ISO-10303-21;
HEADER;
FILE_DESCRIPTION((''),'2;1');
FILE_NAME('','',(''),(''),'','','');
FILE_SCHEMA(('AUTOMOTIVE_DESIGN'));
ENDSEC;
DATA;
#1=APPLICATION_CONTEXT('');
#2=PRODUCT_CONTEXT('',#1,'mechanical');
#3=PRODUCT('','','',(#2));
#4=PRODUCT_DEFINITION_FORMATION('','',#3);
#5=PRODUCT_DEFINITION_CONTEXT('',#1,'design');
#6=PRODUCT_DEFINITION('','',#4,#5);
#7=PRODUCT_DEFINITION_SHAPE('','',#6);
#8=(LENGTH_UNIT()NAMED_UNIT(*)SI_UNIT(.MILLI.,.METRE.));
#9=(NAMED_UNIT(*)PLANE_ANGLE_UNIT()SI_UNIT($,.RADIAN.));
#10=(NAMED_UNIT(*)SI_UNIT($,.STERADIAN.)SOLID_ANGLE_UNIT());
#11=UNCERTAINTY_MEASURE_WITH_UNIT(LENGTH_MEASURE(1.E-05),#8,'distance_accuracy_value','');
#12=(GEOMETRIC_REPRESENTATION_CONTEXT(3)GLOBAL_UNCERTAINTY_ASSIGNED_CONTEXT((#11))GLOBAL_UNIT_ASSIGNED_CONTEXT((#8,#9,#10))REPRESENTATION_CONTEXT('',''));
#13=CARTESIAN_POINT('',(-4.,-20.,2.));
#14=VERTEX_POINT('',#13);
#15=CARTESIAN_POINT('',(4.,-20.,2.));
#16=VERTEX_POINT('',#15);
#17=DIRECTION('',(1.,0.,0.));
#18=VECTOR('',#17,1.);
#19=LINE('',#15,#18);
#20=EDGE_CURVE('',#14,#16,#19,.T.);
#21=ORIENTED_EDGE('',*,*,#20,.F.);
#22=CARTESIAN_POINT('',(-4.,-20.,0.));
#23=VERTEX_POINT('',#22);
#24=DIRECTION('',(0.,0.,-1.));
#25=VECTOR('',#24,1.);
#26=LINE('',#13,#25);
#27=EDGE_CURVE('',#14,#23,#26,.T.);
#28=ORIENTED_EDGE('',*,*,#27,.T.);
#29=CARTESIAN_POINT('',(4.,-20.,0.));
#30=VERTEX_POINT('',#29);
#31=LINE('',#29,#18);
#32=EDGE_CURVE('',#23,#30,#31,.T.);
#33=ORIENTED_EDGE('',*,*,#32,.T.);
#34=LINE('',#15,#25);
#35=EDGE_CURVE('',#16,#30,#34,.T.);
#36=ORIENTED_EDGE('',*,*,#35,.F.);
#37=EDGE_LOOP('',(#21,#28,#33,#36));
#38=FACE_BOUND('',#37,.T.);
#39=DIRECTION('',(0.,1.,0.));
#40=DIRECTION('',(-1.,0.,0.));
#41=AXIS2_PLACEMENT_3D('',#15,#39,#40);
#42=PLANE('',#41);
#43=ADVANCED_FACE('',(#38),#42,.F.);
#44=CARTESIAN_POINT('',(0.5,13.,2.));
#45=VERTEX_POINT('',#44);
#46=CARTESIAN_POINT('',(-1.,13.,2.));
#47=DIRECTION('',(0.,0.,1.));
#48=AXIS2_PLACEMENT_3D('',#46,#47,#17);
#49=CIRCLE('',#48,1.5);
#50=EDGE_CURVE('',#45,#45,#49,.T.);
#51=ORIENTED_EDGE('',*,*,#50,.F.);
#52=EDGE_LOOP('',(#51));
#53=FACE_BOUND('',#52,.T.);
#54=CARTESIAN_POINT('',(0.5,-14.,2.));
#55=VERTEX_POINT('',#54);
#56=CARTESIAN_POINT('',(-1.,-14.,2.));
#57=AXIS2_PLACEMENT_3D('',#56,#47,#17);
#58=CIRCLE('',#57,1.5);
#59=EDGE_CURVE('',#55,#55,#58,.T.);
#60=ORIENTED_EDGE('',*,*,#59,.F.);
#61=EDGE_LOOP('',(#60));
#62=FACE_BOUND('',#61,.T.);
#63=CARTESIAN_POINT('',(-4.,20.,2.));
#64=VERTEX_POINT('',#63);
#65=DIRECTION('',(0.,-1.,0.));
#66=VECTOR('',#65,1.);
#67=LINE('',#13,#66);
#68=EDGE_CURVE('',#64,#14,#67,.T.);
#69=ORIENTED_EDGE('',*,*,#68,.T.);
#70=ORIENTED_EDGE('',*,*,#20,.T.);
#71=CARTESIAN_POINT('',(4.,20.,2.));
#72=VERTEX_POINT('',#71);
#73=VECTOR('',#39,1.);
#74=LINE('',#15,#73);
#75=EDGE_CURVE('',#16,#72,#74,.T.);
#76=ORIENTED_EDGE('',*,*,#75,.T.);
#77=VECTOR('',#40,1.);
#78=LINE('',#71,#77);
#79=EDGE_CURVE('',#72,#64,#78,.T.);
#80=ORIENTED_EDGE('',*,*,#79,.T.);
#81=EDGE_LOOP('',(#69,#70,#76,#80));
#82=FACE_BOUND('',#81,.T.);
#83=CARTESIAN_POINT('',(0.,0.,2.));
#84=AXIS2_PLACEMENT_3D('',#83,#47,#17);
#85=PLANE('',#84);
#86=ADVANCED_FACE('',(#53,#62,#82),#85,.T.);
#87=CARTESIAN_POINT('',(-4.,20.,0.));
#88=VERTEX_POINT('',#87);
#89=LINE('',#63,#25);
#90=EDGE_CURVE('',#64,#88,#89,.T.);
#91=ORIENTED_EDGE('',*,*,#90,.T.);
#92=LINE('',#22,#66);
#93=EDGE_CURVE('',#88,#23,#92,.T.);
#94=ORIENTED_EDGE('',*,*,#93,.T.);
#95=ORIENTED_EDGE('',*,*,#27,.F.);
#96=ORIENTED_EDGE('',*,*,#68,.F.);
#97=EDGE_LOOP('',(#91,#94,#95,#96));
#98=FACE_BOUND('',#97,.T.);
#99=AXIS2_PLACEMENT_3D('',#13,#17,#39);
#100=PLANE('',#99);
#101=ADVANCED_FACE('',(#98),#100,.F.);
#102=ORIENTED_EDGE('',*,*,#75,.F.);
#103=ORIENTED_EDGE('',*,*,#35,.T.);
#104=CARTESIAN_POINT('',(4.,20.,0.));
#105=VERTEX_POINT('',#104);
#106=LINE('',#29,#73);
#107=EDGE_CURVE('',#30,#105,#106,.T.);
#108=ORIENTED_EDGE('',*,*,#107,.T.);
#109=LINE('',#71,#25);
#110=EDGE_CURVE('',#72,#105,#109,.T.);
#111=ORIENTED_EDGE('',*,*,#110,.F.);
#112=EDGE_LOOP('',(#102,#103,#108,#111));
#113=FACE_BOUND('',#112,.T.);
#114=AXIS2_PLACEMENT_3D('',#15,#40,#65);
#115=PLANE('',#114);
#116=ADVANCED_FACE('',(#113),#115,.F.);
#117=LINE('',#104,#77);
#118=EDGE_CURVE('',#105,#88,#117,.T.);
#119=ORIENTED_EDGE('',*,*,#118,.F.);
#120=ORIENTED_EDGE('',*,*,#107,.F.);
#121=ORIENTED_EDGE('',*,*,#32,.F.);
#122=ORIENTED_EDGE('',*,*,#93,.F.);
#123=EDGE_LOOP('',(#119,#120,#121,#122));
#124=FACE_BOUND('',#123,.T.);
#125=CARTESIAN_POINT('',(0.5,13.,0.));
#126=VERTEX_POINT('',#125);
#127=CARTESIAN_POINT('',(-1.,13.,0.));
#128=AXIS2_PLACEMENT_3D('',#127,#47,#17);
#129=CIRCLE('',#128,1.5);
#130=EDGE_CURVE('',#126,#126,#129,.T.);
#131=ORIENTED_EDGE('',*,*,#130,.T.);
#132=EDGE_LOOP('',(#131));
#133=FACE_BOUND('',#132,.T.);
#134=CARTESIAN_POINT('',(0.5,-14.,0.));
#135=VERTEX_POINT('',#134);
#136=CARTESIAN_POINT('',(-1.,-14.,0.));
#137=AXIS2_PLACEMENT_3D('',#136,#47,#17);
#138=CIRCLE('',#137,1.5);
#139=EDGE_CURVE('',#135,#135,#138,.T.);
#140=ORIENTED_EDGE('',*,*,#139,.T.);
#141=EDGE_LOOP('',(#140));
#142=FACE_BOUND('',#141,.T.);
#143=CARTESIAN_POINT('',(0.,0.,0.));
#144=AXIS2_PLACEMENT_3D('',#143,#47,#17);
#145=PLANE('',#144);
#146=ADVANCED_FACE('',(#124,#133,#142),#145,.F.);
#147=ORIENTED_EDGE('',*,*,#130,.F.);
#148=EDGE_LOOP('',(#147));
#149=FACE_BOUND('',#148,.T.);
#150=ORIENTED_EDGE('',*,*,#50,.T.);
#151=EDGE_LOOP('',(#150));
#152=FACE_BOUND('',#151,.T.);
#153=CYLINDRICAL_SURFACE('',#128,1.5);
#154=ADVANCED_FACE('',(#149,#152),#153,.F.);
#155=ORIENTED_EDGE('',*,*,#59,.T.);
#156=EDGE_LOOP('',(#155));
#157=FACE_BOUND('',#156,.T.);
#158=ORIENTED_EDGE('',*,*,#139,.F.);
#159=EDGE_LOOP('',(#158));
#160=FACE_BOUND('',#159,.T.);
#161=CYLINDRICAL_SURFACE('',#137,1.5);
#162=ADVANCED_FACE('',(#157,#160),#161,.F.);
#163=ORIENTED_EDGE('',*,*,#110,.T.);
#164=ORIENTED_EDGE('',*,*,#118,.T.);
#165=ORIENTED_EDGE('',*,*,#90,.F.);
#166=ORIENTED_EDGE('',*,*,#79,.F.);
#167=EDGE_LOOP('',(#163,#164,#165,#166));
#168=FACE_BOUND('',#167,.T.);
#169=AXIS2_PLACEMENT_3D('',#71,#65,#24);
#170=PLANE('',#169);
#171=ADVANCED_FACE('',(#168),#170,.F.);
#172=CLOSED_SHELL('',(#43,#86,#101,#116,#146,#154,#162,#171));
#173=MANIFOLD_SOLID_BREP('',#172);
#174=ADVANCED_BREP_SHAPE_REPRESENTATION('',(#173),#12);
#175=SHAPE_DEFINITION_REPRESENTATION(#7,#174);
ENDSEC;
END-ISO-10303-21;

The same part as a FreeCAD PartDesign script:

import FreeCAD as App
import Part
import Sketcher
from FreeCAD import Vector
Q = App.Units.Quantity

doc = App.newDocument("Part")
body = doc.addObject("PartDesign::Body", "Body")

# Sketch on XY plane
sketch1 = body.newObject("Sketcher::SketchObject", "Sketch")
sketch1.AttachmentSupport = (doc.getObject("XY_Plane"), [""])
sketch1.MapMode = "FlatFace"
sketch1.addGeometry([
    Part.LineSegment(Vector(-4, 20, 0), Vector(-4, -20, 0)),
    Part.LineSegment(Vector(-4, -20, 0), Vector(4, -20, 0)),
    Part.LineSegment(Vector(4, -20, 0), Vector(4, 20, 0)),
    Part.LineSegment(Vector(4, 20, 0), Vector(-4, 20, 0)),
], False)
sketch1.addConstraint([
    Sketcher.Constraint("Coincident", 0, 2, 1, 1),
    Sketcher.Constraint("Coincident", 1, 2, 2, 1),
    Sketcher.Constraint("Coincident", 2, 2, 3, 1),
    Sketcher.Constraint("Coincident", 3, 2, 0, 1),
    Sketcher.Constraint("Vertical", 0),
    Sketcher.Constraint("Horizontal", 1),
    Sketcher.Constraint("Vertical", 2),
    Sketcher.Constraint("Horizontal", 3),
    Sketcher.Constraint("Symmetric", 0, 2, 2, 2, -1, 1),
    Sketcher.Constraint("DistanceX", 1, 1, 1, 2, Q("8 mm")),
    Sketcher.Constraint("DistanceY", 0, 2, 0, 1, Q("40 mm")),
])
pad1 = body.newObject("PartDesign::Pad", "Pad")
pad1.Profile = sketch1
pad1.Length = 2

# Sketch on XY plane
sketch2 = body.newObject("Sketcher::SketchObject", "Sketch001")
sketch2.AttachmentSupport = (doc.getObject("XY_Plane"), [""])
sketch2.MapMode = "FlatFace"
sketch2.AttachmentOffset = App.Placement(Vector(0, 0, 2), App.Rotation())
sketch2.addGeometry([
    Part.Circle(Vector(-1, -14, 0), Vector(0, 0, 1), 1.5),
    Part.Circle(Vector(-1, 13, 0), Vector(0, 0, 1), 1.5),
], False)
sketch2.addConstraint([
    Sketcher.Constraint("Equal", 0, 1),
    Sketcher.Constraint("Vertical", 0, 3, 1, 3),
    Sketcher.Constraint("Diameter", 0, Q("3 mm")),
    Sketcher.Constraint("DistanceX", 0, 3, -1, 1, Q("1 mm")),
    Sketcher.Constraint("DistanceY", 0, 3, -1, 1, Q("14 mm")),
    Sketcher.Constraint("DistanceY", -1, 1, 1, 3, Q("13 mm")),
])
pocket1 = body.newObject("PartDesign::Pocket", "Pocket")
pocket1.Profile = sketch2
pocket1.Length = 2

doc.recompute()
